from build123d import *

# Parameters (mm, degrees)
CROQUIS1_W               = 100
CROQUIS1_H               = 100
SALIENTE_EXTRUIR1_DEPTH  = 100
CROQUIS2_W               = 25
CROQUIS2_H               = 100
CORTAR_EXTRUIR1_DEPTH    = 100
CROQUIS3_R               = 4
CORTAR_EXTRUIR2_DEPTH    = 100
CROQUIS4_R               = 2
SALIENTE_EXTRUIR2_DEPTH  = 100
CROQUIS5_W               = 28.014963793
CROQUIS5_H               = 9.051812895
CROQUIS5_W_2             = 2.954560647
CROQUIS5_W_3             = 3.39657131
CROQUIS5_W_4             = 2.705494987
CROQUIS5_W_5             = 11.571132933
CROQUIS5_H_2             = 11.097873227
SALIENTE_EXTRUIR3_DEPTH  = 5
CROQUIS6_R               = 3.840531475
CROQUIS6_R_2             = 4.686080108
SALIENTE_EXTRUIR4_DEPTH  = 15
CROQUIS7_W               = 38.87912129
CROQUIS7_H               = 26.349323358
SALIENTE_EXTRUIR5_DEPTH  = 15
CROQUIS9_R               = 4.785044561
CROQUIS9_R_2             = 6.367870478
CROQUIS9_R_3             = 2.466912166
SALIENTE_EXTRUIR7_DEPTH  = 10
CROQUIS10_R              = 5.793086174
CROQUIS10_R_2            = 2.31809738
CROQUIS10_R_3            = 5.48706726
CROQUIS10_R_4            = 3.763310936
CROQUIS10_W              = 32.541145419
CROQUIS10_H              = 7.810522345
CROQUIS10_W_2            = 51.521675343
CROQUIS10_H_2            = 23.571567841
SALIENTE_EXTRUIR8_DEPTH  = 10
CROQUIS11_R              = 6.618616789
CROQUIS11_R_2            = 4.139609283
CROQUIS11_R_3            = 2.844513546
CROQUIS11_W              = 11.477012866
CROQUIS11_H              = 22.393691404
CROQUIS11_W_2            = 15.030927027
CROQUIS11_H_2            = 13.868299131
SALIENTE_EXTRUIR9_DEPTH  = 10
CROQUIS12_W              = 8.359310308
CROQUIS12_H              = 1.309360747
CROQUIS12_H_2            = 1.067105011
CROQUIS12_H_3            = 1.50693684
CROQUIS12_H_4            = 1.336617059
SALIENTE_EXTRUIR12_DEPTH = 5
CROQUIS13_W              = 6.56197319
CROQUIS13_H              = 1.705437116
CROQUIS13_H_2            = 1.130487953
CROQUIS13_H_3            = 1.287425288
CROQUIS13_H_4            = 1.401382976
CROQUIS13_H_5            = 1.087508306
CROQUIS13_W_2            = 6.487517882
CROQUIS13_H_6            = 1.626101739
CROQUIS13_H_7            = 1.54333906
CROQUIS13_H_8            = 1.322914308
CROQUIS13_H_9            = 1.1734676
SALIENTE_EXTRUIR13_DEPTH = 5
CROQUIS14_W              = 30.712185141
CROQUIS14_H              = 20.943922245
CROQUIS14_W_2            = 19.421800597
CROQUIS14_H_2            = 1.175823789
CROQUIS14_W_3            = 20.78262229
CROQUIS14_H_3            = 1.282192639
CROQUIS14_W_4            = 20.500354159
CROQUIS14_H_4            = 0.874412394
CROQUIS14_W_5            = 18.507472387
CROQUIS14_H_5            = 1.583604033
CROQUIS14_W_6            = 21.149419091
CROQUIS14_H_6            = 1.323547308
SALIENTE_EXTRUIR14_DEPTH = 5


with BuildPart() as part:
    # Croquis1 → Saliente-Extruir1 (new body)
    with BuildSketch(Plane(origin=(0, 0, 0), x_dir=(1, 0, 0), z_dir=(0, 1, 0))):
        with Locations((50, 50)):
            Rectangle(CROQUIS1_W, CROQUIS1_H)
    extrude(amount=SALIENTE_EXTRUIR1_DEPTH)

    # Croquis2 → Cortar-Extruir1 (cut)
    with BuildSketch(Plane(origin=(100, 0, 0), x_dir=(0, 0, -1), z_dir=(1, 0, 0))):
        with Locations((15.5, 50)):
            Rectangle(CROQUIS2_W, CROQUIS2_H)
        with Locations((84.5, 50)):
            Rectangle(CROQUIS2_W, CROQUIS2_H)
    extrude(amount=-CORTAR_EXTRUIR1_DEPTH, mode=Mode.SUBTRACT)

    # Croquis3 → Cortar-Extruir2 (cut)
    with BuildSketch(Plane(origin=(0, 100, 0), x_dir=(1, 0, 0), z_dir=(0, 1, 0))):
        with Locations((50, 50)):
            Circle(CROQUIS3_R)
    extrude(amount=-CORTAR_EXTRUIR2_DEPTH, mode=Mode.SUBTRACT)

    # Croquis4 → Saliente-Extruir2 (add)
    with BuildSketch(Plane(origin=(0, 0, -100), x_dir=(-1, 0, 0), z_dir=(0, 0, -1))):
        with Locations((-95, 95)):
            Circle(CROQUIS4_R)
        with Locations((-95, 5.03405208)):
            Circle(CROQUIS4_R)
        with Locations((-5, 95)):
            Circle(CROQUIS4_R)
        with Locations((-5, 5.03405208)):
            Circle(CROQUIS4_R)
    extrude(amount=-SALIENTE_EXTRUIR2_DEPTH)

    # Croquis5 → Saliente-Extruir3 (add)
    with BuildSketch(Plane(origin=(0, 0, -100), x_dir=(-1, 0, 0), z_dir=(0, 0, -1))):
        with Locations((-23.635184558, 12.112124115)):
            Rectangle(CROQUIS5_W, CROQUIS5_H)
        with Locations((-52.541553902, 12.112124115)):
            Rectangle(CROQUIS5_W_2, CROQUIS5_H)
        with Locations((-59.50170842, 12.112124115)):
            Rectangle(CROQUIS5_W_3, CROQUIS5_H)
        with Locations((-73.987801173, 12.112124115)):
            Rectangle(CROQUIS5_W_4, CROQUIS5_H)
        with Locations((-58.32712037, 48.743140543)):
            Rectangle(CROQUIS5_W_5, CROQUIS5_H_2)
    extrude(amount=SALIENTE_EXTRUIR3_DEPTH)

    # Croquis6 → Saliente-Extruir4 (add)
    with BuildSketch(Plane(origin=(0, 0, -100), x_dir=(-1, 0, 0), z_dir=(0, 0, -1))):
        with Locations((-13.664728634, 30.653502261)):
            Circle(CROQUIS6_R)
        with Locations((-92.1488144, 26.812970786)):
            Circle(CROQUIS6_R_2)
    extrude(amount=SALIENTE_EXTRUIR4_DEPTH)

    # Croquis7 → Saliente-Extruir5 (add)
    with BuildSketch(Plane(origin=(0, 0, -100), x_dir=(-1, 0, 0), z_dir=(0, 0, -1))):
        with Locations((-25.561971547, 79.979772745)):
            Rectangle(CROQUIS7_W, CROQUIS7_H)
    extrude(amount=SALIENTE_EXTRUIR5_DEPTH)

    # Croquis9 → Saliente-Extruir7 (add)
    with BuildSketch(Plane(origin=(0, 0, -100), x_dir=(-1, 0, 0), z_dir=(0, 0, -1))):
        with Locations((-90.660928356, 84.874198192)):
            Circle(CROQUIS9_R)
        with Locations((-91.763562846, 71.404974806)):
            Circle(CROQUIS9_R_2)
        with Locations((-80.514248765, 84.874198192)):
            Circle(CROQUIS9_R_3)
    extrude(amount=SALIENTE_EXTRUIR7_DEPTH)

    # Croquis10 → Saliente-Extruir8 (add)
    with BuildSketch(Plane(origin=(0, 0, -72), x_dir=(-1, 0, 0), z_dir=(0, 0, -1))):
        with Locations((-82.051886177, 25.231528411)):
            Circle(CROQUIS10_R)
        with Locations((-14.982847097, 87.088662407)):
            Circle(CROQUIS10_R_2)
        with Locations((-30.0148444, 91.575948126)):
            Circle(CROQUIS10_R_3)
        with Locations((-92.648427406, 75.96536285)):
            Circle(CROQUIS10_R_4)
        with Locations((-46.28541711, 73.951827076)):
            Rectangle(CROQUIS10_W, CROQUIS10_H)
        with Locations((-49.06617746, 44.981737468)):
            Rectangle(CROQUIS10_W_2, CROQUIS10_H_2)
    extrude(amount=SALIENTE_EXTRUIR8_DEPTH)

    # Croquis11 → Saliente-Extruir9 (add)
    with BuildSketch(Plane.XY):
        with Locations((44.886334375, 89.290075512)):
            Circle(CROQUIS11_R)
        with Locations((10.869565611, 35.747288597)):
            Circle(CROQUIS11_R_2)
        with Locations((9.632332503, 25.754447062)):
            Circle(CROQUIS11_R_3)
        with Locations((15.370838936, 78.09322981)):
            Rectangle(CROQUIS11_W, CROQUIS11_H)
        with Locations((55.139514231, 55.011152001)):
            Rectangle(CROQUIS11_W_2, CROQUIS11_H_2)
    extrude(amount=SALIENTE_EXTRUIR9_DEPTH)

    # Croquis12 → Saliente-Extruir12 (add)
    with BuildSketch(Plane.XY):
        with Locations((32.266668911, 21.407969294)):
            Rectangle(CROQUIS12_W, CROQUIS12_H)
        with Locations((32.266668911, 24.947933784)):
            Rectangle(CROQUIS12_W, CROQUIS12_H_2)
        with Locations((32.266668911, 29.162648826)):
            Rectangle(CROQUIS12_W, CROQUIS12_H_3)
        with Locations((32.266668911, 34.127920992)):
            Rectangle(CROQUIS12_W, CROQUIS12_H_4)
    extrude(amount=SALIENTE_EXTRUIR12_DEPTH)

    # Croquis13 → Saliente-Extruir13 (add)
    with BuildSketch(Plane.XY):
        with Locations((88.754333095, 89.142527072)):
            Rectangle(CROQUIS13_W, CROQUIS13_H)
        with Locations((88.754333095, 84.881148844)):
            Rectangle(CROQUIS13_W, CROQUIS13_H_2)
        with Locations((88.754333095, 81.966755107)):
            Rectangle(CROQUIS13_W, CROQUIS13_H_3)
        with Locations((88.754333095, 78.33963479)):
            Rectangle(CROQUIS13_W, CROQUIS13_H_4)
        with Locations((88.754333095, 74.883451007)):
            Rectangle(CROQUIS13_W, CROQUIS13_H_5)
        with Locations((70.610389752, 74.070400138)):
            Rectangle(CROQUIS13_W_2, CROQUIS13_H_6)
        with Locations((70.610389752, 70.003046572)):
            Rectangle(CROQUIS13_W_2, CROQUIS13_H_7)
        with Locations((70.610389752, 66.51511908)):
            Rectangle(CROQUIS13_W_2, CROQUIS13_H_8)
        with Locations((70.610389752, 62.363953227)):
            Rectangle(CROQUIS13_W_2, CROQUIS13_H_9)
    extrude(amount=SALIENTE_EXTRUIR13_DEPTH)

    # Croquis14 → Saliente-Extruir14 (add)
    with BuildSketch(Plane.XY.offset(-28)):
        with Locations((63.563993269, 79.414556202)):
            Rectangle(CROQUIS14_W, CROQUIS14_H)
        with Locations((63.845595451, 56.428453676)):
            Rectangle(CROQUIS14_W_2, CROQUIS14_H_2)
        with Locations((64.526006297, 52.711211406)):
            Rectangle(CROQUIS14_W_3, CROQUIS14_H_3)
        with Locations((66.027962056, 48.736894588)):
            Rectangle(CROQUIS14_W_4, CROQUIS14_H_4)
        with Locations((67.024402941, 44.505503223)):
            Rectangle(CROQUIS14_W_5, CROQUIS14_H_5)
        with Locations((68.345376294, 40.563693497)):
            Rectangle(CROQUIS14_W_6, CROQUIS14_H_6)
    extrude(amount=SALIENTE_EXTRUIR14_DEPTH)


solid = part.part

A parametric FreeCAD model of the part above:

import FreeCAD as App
import Part
import Sketcher

V = App.Vector

doc = App.newDocument("Part")
body = doc.addObject("PartDesign::Body", "Body")
body.AllowCompound = True

sketch1 = body.newObject("Sketcher::SketchObject", "Sketch")
sketch1.AttachmentSupport = (doc.getObject("XZ_Plane"), [""])
sketch1.MapMode = "FlatFace"
sketch1.addGeometry([
    Part.LineSegment(V(0, -100, 0), V(0, 0, 0)),
    Part.LineSegment(V(0, 0, 0), V(100, 0, 0)),
    Part.LineSegment(V(100, 0, 0), V(100, -100, 0)),
    Part.LineSegment(V(100, -100, 0), V(0, -100, 0)),
], False)
sketch1.addConstraint([
    Sketcher.Constraint("Coincident", 0, 2, 1, 1),
    Sketcher.Constraint("Coincident", 1, 2, 2, 1),
    Sketcher.Constraint("Coincident", 2, 2, 3, 1),
    Sketcher.Constraint("Coincident", 3, 2, 0, 1),
    Sketcher.Constraint("Vertical", 0),
    Sketcher.Constraint("Horizontal", 1),
    Sketcher.Constraint("Vertical", 2),
    Sketcher.Constraint("Horizontal", 3),
    Sketcher.Constraint("Coincident", 0, 2, -1, 1),
    Sketcher.Constraint("Equal", 3, 0),
    Sketcher.Constraint("DistanceX", 1, 1, 1, 2, 100.0),
])
pad1 = body.newObject("PartDesign::Pad", "Pad")
pad1.Profile = sketch1
pad1.Length = 100
pad1.Reversed = True

sketch2 = body.newObject("Sketcher::SketchObject", "Sketch001")
sketch2.AttachmentSupport = (doc.getObject("YZ_Plane"), [""])
sketch2.MapMode = "FlatFace"
sketch2.AttachmentOffset = App.Placement(V(0, 0, 100), App.Rotation())
sketch2.addGeometry([
    Part.LineSegment(V(100, -3, 0), V(0, -3, 0)),
    Part.LineSegment(V(0, -3, 0), V(0, -28, 0)),
    Part.LineSegment(V(0, -28, 0), V(100, -28, 0)),
    Part.LineSegment(V(100, -28, 0), V(100, -3, 0)),
    Part.LineSegment(V(100, -72, 0), V(0, -72, 0)),
    Part.LineSegment(V(0, -72, 0), V(0, -97, 0)),
    Part.LineSegment(V(0, -97, 0), V(100, -97, 0)),
    Part.LineSegment(V(100, -97, 0), V(100, -72, 0)),
], False)
sketch2.addConstraint([
    Sketcher.Constraint("Coincident", 0, 2, 1, 1),
    Sketcher.Constraint("Coincident", 1, 2, 2, 1),
    Sketcher.Constraint("Coincident", 2, 2, 3, 1),
    Sketcher.Constraint("Coincident", 3, 2, 0, 1),
    Sketcher.Constraint("Coincident", 4, 2, 5, 1),
    Sketcher.Constraint("Coincident", 5, 2, 6, 1),
    Sketcher.Constraint("Coincident", 6, 2, 7, 1),
    Sketcher.Constraint("Coincident", 7, 2, 4, 1),
    Sketcher.Constraint("Horizontal", 0),
    Sketcher.Constraint("Vertical", 1),
    Sketcher.Constraint("Horizontal", 2),
    Sketcher.Constraint("Vertical", 3),
    Sketcher.Constraint("Horizontal", 4),
    Sketcher.Constraint("Vertical", 5),
    Sketcher.Constraint("Horizontal", 6),
    Sketcher.Constraint("Vertical", 7),
    Sketcher.Constraint("PointOnObject", 0, 2, -2),
    Sketcher.Constraint("PointOnObject", 4, 2, -2),
    Sketcher.Constraint("Vertical", 3, 2, 6, 2),
    Sketcher.Constraint("Equal", 3, 5),
    Sketcher.Constraint("DistanceX", 0, 2, 0, 1, 100.0),
    Sketcher.Constraint("DistanceY", 1, 2, 1, 1, 25.0),
    Sketcher.Constraint("DistanceY", 0, 2, -1, 1, 3.0),
    Sketcher.Constraint("DistanceY", 4, 2, -1, 1, 72.0),
])
pocket1 = body.newObject("PartDesign::Pocket", "Pocket")
pocket1.Profile = sketch2
pocket1.Length = 100

sketch3 = body.newObject("Sketcher::SketchObject", "Sketch002")
sketch3.AttachmentSupport = (doc.getObject("XZ_Plane"), [""])
sketch3.MapMode = "FlatFace"
sketch3.AttachmentOffset = App.Placement(V(0, 0, -100), App.Rotation())
sketch3.addGeometry(Part.Circle(V(50, -50, 0), V(0, 0, 1), 4), False)
sketch3.addConstraint([
    Sketcher.Constraint("Diameter", 0, 8.0),
    Sketcher.Constraint("DistanceX", -1, 1, 0, 3, 50.0),
    Sketcher.Constraint("DistanceY", 0, 3, -1, 1, 50.0),
])
pocket2 = body.newObject("PartDesign::Pocket", "Pocket001")
pocket2.Profile = sketch3
pocket2.Length = 100
pocket2.Reversed = True

sketch4 = body.newObject("Sketcher::SketchObject", "Sketch003")
sketch4.AttachmentSupport = (doc.getObject("XY_Plane"), [""])
sketch4.MapMode = "FlatFace"
sketch4.AttachmentOffset = App.Placement(V(0, 0, -100), App.Rotation())
sketch4.addGeometry([
    Part.Circle(V(95, 95, 0), V(0, 0, 1), 2),
    Part.Circle(V(95, 5.034052, 0), V(0, 0, 1), 2),
    Part.Circle(V(5, 95, 0), V(0, 0, 1), 2),
    Part.Circle(V(5, 5.034052, 0), V(0, 0, 1), 2),
], False)
sketch4.addConstraint([
    Sketcher.Constraint("Equal", 0, 1),
    Sketcher.Constraint("Equal", 1, 2),
    Sketcher.Constraint("Equal", 2, 3),
    Sketcher.Constraint("Horizontal", 0, 3, 2, 3),
    Sketcher.Constraint("Horizontal", 1, 3, 3, 3),
    Sketcher.Constraint("Vertical", 0, 3, 1, 3),
    Sketcher.Constraint("Vertical", 2, 3, 3, 3),
    Sketcher.Constraint("Diameter", 0, 4.0),
    Sketcher.Constraint("DistanceX", -1, 1, 0, 3, 95.0),
    Sketcher.Constraint("DistanceY", -1, 1, 0, 3, 95.0),
    Sketcher.Constraint("DistanceX", -1, 1, 2, 3, 5.0),
    Sketcher.Constraint("DistanceY", -1, 1, 1, 3, 5.034052),
])
pad2 = body.newObject("PartDesign::Pad", "Pad001")
pad2.Profile = sketch4
pad2.Length = 100

sketch5 = body.newObject("Sketcher::SketchObject", "Sketch004")
sketch5.AttachmentSupport = (doc.getObject("XY_Plane"), [""])
sketch5.MapMode = "FlatFace"
sketch5.AttachmentOffset = App.Placement(V(0, 0, -100), App.Rotation())
sketch5.addGeometry([
    Part.LineSegment(V(37.642666, 16.638031, 0), V(37.642666, 7.586218, 0)),
    Part.LineSegment(V(37.642666, 7.586218, 0), V(9.627703, 7.586218, 0)),
    Part.LineSegment(V(9.627703, 7.586218, 0), V(9.627703, 16.638031, 0)),
    Part.LineSegment(V(9.627703, 16.638031, 0), V(37.642666, 16.638031, 0)),
    Part.LineSegment(V(54.018834, 16.638031, 0), V(54.018834, 7.586218, 0)),
    Part.LineSegment(V(54.018834, 7.586218, 0), V(51.064274, 7.586218, 0)),
    Part.LineSegment(V(51.064274, 7.586218, 0), V(51.064274, 16.638031, 0)),
    Part.LineSegment(V(51.064274, 16.638031, 0), V(54.018834, 16.638031, 0)),
    Part.LineSegment(V(61.199994, 16.638031, 0), V(61.199994, 7.586218, 0)),
    Part.LineSegment(V(61.199994, 7.586218, 0), V(57.803423, 7.586218, 0)),
    Part.LineSegment(V(57.803423, 7.586218, 0), V(57.803423, 16.638031, 0)),
    Part.LineSegment(V(57.803423, 16.638031, 0), V(61.199994, 16.638031, 0)),
    Part.LineSegment(V(75.340549, 16.638031, 0), V(75.340549, 7.586218, 0)),
    Part.LineSegment(V(75.340549, 7.586218, 0), V(72.635054, 7.586218, 0)),
    Part.LineSegment(V(72.635054, 7.586218, 0), V(72.635054, 16.638031, 0)),
    Part.LineSegment(V(72.635054, 16.638031, 0), V(75.340549, 16.638031, 0)),
    Part.LineSegment(V(64.112687, 54.292077, 0), V(64.112687, 43.194204, 0)),
    Part.LineSegment(V(64.112687, 43.194204, 0), V(52.541554, 43.194204, 0)),
    Part.LineSegment(V(52.541554, 43.194204, 0), V(52.541554, 54.292077, 0)),
    Part.LineSegment(V(52.541554, 54.292077, 0), V(64.112687, 54.292077, 0)),
], False)
sketch5.addConstraint([
    Sketcher.Constraint("Coincident", 0, 2, 1, 1),
    Sketcher.Constraint("Coincident", 1, 2, 2, 1),
    Sketcher.Constraint("Coincident", 2, 2, 3, 1),
    Sketcher.Constraint("Coincident", 3, 2, 0, 1),
    Sketcher.Constraint("Coincident", 4, 2, 5, 1),
    Sketcher.Constraint("Coincident", 5, 2, 6, 1),
    Sketcher.Constraint("Coincident", 6, 2, 7, 1),
    Sketcher.Constraint("Coincident", 7, 2, 4, 1),
    Sketcher.Constraint("Coincident", 8, 2, 9, 1),
    Sketcher.Constraint("Coincident", 9, 2, 10, 1),
    Sketcher.Constraint("Coincident", 10, 2, 11, 1),
    Sketcher.Constraint("Coincident", 11, 2, 8, 1),
    Sketcher.Constraint("Coincident", 12, 2, 13, 1),
    Sketcher.Constraint("Coincident", 13, 2, 14, 1),
    Sketcher.Constraint("Coincident", 14, 2, 15, 1),
    Sketcher.Constraint("Coincident", 15, 2, 12, 1),
    Sketcher.Constraint("Coincident", 16, 2, 17, 1),
    Sketcher.Constraint("Coincident", 17, 2, 18, 1),
    Sketcher.Constraint("Coincident", 18, 2, 19, 1),
    Sketcher.Constraint("Coincident", 19, 2, 16, 1),
    Sketcher.Constraint("Vertical", 0),
    Sketcher.Constraint("Horizontal", 1),
    Sketcher.Constraint("Vertical", 2),
    Sketcher.Constraint("Horizontal", 3),
    Sketcher.Constraint("Vertical", 4),
    Sketcher.Constraint("Horizontal", 5),
    Sketcher.Constraint("Vertical", 6),
    Sketcher.Constraint("Horizontal", 7),
    Sketcher.Constraint("Vertical", 8),
    Sketcher.Constraint("Horizontal", 9),
    Sketcher.Constraint("Vertical", 10),
    Sketcher.Constraint("Horizontal", 11),
    Sketcher.Constraint("Vertical", 12),
    Sketcher.Constraint("Horizontal", 13),
    Sketcher.Constraint("Vertical", 14),
    Sketcher.Constraint("Horizontal", 15),
    Sketcher.Constraint("Vertical", 16),
    Sketcher.Constraint("Horizontal", 17),
    Sketcher.Constraint("Vertical", 18),
    Sketcher.Constraint("Horizontal", 19),
    Sketcher.Constraint("Horizontal", 1, 2, 4, 2),
    Sketcher.Constraint("Horizontal", 3, 2, 6, 2),
    Sketcher.Constraint("Horizontal", 5, 2, 8, 2),
    Sketcher.Constraint("Horizontal", 7, 2, 10, 2),
    Sketcher.Constraint("Horizontal", 9, 2, 12, 2),
    Sketcher.Constraint("Horizontal", 11, 2, 14, 2),
    Sketcher.Constraint("DistanceX", 5, 2, 5, 1, 2.954561),
    Sketcher.Constraint("DistanceX", 9, 2, 9, 1, 3.396571),
    Sketcher.Constraint("DistanceX", 1, 2, 1, 1, 28.014964),
    Sketcher.Constraint("DistanceX", 13, 2, 13, 1, 2.705495),
    Sketcher.Constraint("DistanceX", 17, 2, 17, 1, 11.571133),
    Sketcher.Constraint("DistanceY", 0, 2, 0, 1, 9.051813),
    Sketcher.Constraint("DistanceY", 16, 2, 16, 1, 11.097873),
    Sketcher.Constraint("DistanceY", -1, 1, 2, 2, 16.638031),
    Sketcher.Constraint("DistanceX", -1, 1, 12, 2, 75.340549),
    Sketcher.Constraint("DistanceX", 1, 2, 4, 2, 44.391132),
    Sketcher.Constraint("DistanceX", 4, 2, 8, 2, 7.18116),
    Sketcher.Constraint("DistanceX", 8, 2, 13, 2, 11.43506),
    Sketcher.Constraint("DistanceX", 16, 2, 15, 2, 11.227862),
    Sketcher.Constraint("DistanceY", -1, 1, 16, 2, 43.194204),
])
pad3 = body.newObject("PartDesign::Pad", "Pad002")
pad3.Profile = sketch5
pad3.Length = 5
pad3.Reversed = True

sketch6 = body.newObject("Sketcher::SketchObject", "Sketch005")
sketch6.AttachmentSupport = (doc.getObject("XY_Plane"), [""])
sketch6.MapMode = "FlatFace"
sketch6.AttachmentOffset = App.Placement(V(0, 0, -100), App.Rotation())
sketch6.addGeometry([
    Part.Circle(V(13.664729, 30.653502, 0), V(0, 0, 1), 3.840531),
    Part.Circle(V(92.148814, 26.812971, 0), V(0, 0, 1), 4.68608),
], False)
sketch6.addConstraint([
    Sketcher.Constraint("Diameter", 1, 9.37216),
    Sketcher.Constraint("Diameter", 0, 7.681063),
    Sketcher.Constraint("DistanceX", -1, 1, 0, 3, 13.664729),
    Sketcher.Constraint("DistanceY", -1, 1, 1, 3, 26.812971),
    Sketcher.Constraint("DistanceY", 1, 3, 0, 3, 3.840531),
    Sketcher.Constraint("DistanceX", -1, 1, 1, 3, 92.148814),
])
pad4 = body.newObject("PartDesign::Pad", "Pad003")
pad4.Profile = sketch6
pad4.Length = 15
pad4.Reversed = True

sketch7 = body.newObject("Sketcher::SketchObject", "Sketch006")
sketch7.AttachmentSupport = (doc.getObject("XY_Plane"), [""])
sketch7.MapMode = "FlatFace"
sketch7.AttachmentOffset = App.Placement(V(0, 0, -100), App.Rotation())
sketch7.addGeometry([
    Part.LineSegment(V(45.001532, 93.154434, 0), V(45.001532, 66.805111, 0)),
    Part.LineSegment(V(45.001532, 66.805111, 0), V(6.122411, 66.805111, 0)),
    Part.LineSegment(V(6.122411, 66.805111, 0), V(6.122411, 93.154434, 0)),
    Part.LineSegment(V(6.122411, 93.154434, 0), V(45.001532, 93.154434, 0)),
], False)
sketch7.addConstraint([
    Sketcher.Constraint("Coincident", 0, 2, 1, 1),
    Sketcher.Constraint("Coincident", 1, 2, 2, 1),
    Sketcher.Constraint("Coincident", 2, 2, 3, 1),
    Sketcher.Constraint("Coincident", 3, 2, 0, 1),
    Sketcher.Constraint("Vertical", 0),
    Sketcher.Constraint("Horizontal", 1),
    Sketcher.Constraint("Vertical", 2),
    Sketcher.Constraint("Horizontal", 3),
    Sketcher.Constraint("DistanceX", 1, 2, 1, 1, 38.879121),
    Sketcher.Constraint("DistanceY", 0, 2, 0, 1, 26.349323),
    Sketcher.Constraint("DistanceY", -1, 1, 0, 2, 66.805111),
    Sketcher.Constraint("DistanceX", -1, 1, 1, 2, 6.122411),
])
pad5 = body.newObject("PartDesign::Pad", "Pad004")
pad5.Profile = sketch7
pad5.Length = 15
pad5.Reversed = True

sketch8 = body.newObject("Sketcher::SketchObject", "Sketch007")
sketch8.AttachmentSupport = (doc.getObject("XY_Plane"), [""])
sketch8.MapMode = "FlatFace"
sketch8.AttachmentOffset = App.Placement(V(0, 0, -100), App.Rotation())
sketch8.addGeometry([
    Part.Circle(V(90.660928, 84.874198, 0), V(0, 0, 1), 4.785045),
    Part.Circle(V(91.763563, 71.404975, 0), V(0, 0, 1), 6.36787),
    Part.Circle(V(80.514249, 84.874198, 0), V(0, 0, 1), 2.466912),
], False)
sketch8.addConstraint([
    Sketcher.Constraint("Horizontal", 0, 3, 2, 3),
    Sketcher.Constraint("Diameter", 0, 9.570089),
    Sketcher.Constraint("Diameter", 1, 12.735741),
    Sketcher.Constraint("Diameter", 2, 4.933824),
    Sketcher.Constraint("DistanceY", -1, 1, 0, 3, 84.874198),
    Sketcher.Constraint("DistanceX", -1, 1, 0, 3, 90.660928),
    Sketcher.Constraint("DistanceX", -1, 1, 2, 3, 80.514249),
    Sketcher.Constraint("DistanceX", -1, 1, 1, 3, 91.763563),
    Sketcher.Constraint("DistanceY", -1, 1, 1, 3, 71.404975),
])
pad6 = body.newObject("PartDesign::Pad", "Pad005")
pad6.Profile = sketch8
pad6.Length = 10
pad6.Reversed = True

sketch9 = body.newObject("Sketcher::SketchObject", "Sketch008")
sketch9.AttachmentSupport = (doc.getObject("XY_Plane"), [""])
sketch9.MapMode = "FlatFace"
sketch9.AttachmentOffset = App.Placement(V(0, 0, -72), App.Rotation())
sketch9.addGeometry([
    Part.Circle(V(82.051886, 25.231528, 0), V(0, 0, 1), 5.793086),
    Part.Circle(V(14.982847, 87.088662, 0), V(0, 0, 1), 2.318097),
    Part.Circle(V(30.014844, 91.575948, 0), V(0, 0, 1), 5.487067),
    Part.Circle(V(92.648427, 75.965363, 0), V(0, 0, 1), 3.763311),
    Part.LineSegment(V(62.55599, 77.857088, 0), V(62.55599, 70.046566, 0)),
    Part.LineSegment(V(62.55599, 70.046566, 0), V(30.014844, 70.046566, 0)),
    Part.LineSegment(V(30.014844, 70.046566, 0), V(30.014844, 77.857088, 0)),
    Part.LineSegment(V(30.014844, 77.857088, 0), V(62.55599, 77.857088, 0)),
    Part.LineSegment(V(74.827015, 56.767521, 0), V(74.827015, 33.195954, 0)),
    Part.LineSegment(V(74.827015, 33.195954, 0), V(23.30534, 33.195954, 0)),
    Part.LineSegment(V(23.30534, 33.195954, 0), V(23.30534, 56.767521, 0)),
    Part.LineSegment(V(23.30534, 56.767521, 0), V(74.827015, 56.767521, 0)),
], False)
sketch9.addConstraint([
    Sketcher.Constraint("Coincident", 4, 2, 5, 1),
    Sketcher.Constraint("Coincident", 5, 2, 6, 1),
    Sketcher.Constraint("Coincident", 6, 2, 7, 1),
    Sketcher.Constraint("Coincident", 7, 2, 4, 1),
    Sketcher.Constraint("Coincident", 8, 2, 9, 1),
    Sketcher.Constraint("Coincident", 9, 2, 10, 1),
    Sketcher.Constraint("Coincident", 10, 2, 11, 1),
    Sketcher.Constraint("Coincident", 11, 2, 8, 1),
    Sketcher.Constraint("Vertical", 4),
    Sketcher.Constraint("Horizontal", 5),
    Sketcher.Constraint("Vertical", 6),
    Sketcher.Constraint("Horizontal", 7),
    Sketcher.Constraint("Vertical", 8),
    Sketcher.Constraint("Horizontal", 9),
    Sketcher.Constraint("Vertical", 10),
    Sketcher.Constraint("Horizontal", 11),
    Sketcher.Constraint("Vertical", 2, 3, 5, 2),
    Sketcher.Constraint("Diameter", 3, 7.526622),
    Sketcher.Constraint("Diameter", 0, 11.586172),
    Sketcher.Constraint("Diameter", 1, 4.636195),
    Sketcher.Constraint("Diameter", 2, 10.974135),
    Sketcher.Constraint("DistanceY", 3, 3, 1, 3, 11.1233),
    Sketcher.Constraint("DistanceX", 5, 2, 5, 1, 32.541145),
    Sketcher.Constraint("DistanceX", 9, 2, 9, 1, 51.521675),
    Sketcher.Constraint("DistanceY", 4, 2, 4, 1, 7.810522),
    Sketcher.Constraint("DistanceY", 8, 2, 8, 1, 23.571568),
    Sketcher.Constraint("DistanceY", -1, 1, 0, 3, 25.231528),
    Sketcher.Constraint("DistanceY", -1, 1, 2, 3, 91.575948),
    Sketcher.Constraint("DistanceX", -1, 1, 4, 2, 62.55599),
    Sketcher.Constraint("DistanceY", -1, 1, 6, 2, 77.857088),
    Sketcher.Constraint("DistanceX", -1, 1, 9, 2, 23.30534),
    Sketcher.Constraint("DistanceY", -1, 1, 10, 2, 56.767521),
    Sketcher.Constraint("DistanceX", 1, 3, 0, 3, 67.069039),
    Sketcher.Constraint("DistanceX", 2, 3, 0, 3, 52.037042),
    Sketcher.Constraint("DistanceX", 0, 3, 3, 3, 10.596541),
    Sketcher.Constraint("DistanceY", 8, 2, 3, 3, 42.769409),
])
pad7 = body.newObject("PartDesign::Pad", "Pad006")
pad7.Profile = sketch9
pad7.Length = 10
pad7.Reversed = True

sketch10 = body.newObject("Sketcher::SketchObject", "Sketch009")
sketch10.AttachmentSupport = (doc.getObject("XY_Plane"), [""])
sketch10.MapMode = "FlatFace"
sketch10.addGeometry([
    Part.Circle(V(44.886334, 89.290076, 0), V(0, 0, 1), 6.618617),
    Part.Circle(V(10.869566, 35.747289, 0), V(0, 0, 1), 4.139609),
    Part.Circle(V(9.632333, 25.754447, 0), V(0, 0, 1), 2.844514),
    Part.LineSegment(V(9.632333, 89.290076, 0), V(9.632333, 66.896384, 0)),
    Part.LineSegment(V(9.632333, 66.896384, 0), V(21.109345, 66.896384, 0)),
    Part.LineSegment(V(21.109345, 66.896384, 0), V(21.109345, 89.290076, 0)),
    Part.LineSegment(V(21.109345, 89.290076, 0), V(9.632333, 89.290076, 0)),
    Part.LineSegment(V(47.624051, 61.945302, 0), V(47.624051, 48.077002, 0)),
    Part.LineSegment(V(47.624051, 48.077002, 0), V(62.654978, 48.077002, 0)),
    Part.LineSegment(V(62.654978, 48.077002, 0), V(62.654978, 61.945302, 0)),
    Part.LineSegment(V(62.654978, 61.945302, 0), V(47.624051, 61.945302, 0)),
], False)
sketch10.addConstraint([
    Sketcher.Constraint("Coincident", 3, 2, 4, 1),
    Sketcher.Constraint("Coincident", 4, 2, 5, 1),
    Sketcher.Constraint("Coincident", 5, 2, 6, 1),
    Sketcher.Constraint("Coincident", 6, 2, 3, 1),
    Sketcher.Constraint("Coincident", 7, 2, 8, 1),
    Sketcher.Constraint("Coincident", 8, 2, 9, 1),
    Sketcher.Constraint("Coincident", 9, 2, 10, 1),
    Sketcher.Constraint("Coincident", 10, 2, 7, 1),
    Sketcher.Constraint("Vertical", 3),
    Sketcher.Constraint("Horizontal", 4),
    Sketcher.Constraint("Vertical", 5),
    Sketcher.Constraint("Horizontal", 6),
    Sketcher.Constraint("Vertical", 7),
    Sketcher.Constraint("Horizontal", 8),
    Sketcher.Constraint("Vertical", 9),
    Sketcher.Constraint("Horizontal", 10),
    Sketcher.Constraint("Horizontal", 0, 3, 5, 2),
    Sketcher.Constraint("Vertical", 2, 3, 3, 2),
    Sketcher.Constraint("Diameter", 1, 8.279219),
    Sketcher.Constraint("Diameter", 0, 13.237234),
    Sketcher.Constraint("Diameter", 2, 5.689027),
    Sketcher.Constraint("DistanceY", 7, 2, 7, 1, 13.868299),
    Sketcher.Constraint("DistanceX", 2, 3, 0, 3, 35.254002),
    Sketcher.Constraint("DistanceY", 3, 2, 3, 1, 22.393691),
    Sketcher.Constraint("DistanceY", -1, 1, 9, 2, 61.945302),
    Sketcher.Constraint("DistanceX", 4, 1, 4, 2, 11.477013),
    Sketcher.Constraint("DistanceX", 8, 1, 8, 2, 15.030927),
    Sketcher.Constraint("DistanceY", -1, 1, 1, 3, 35.747289),
    Sketcher.Constraint("DistanceX", -1, 1, 7, 2, 47.624051),
    Sketcher.Constraint("DistanceX", 1, 3, 0, 3, 34.016769),
    Sketcher.Constraint("DistanceY", 2, 3, 1, 3, 9.992842),
    Sketcher.Constraint("DistanceY", 2, 3, 0, 3, 63.535628),
    Sketcher.Constraint("DistanceX", 3, 2, 7, 2, 37.991718),
])
pad8 = body.newObject("PartDesign::Pad", "Pad007")
pad8.Profile = sketch10
pad8.Length = 10

sketch11 = body.newObject("Sketcher::SketchObject", "Sketch010")
sketch11.AttachmentSupport = (doc.getObject("XY_Plane"), [""])
sketch11.MapMode = "FlatFace"
sketch11.addGeometry([
    Part.LineSegment(V(28.087014, 22.06265, 0), V(28.087014, 20.753289, 0)),
    Part.LineSegment(V(28.087014, 20.753289, 0), V(36.446324, 20.753289, 0)),
    Part.LineSegment(V(36.446324, 20.753289, 0), V(36.446324, 22.06265, 0)),
    Part.LineSegment(V(36.446324, 22.06265, 0), V(28.087014, 22.06265, 0)),
    Part.LineSegment(V(28.087014, 25.481486, 0), V(28.087014, 24.414381, 0)),
    Part.LineSegment(V(28.087014, 24.414381, 0), V(36.446324, 24.414381, 0)),
    Part.LineSegment(V(36.446324, 24.414381, 0), V(36.446324, 25.481486, 0)),
    Part.LineSegment(V(36.446324, 25.481486, 0), V(28.087014, 25.481486, 0)),
    Part.LineSegment(V(28.087014, 29.916117, 0), V(28.087014, 28.40918, 0)),
    Part.LineSegment(V(28.087014, 28.40918, 0), V(36.446324, 28.40918, 0)),
    Part.LineSegment(V(36.446324, 28.40918, 0), V(36.446324, 29.916117, 0)),
    Part.LineSegment(V(36.446324, 29.916117, 0), V(28.087014, 29.916117, 0)),
    Part.LineSegment(V(28.087014, 34.79623, 0), V(28.087014, 33.459612, 0)),
    Part.LineSegment(V(28.087014, 33.459612, 0), V(36.446324, 33.459612, 0)),
    Part.LineSegment(V(36.446324, 33.459612, 0), V(36.446324, 34.79623, 0)),
    Part.LineSegment(V(36.446324, 34.79623, 0), V(28.087014, 34.79623, 0)),
], False)
sketch11.addConstraint([
    Sketcher.Constraint("Coincident", 0, 2, 1, 1),
    Sketcher.Constraint("Coincident", 1, 2, 2, 1),
    Sketcher.Constraint("Coincident", 2, 2, 3, 1),
    Sketcher.Constraint("Coincident", 3, 2, 0, 1),
    Sketcher.Constraint("Coincident", 4, 2, 5, 1),
    Sketcher.Constraint("Coincident", 5, 2, 6, 1),
    Sketcher.Constraint("Coincident", 6, 2, 7, 1),
    Sketcher.Constraint("Coincident", 7, 2, 4, 1),
    Sketcher.Constraint("Coincident", 8, 2, 9, 1),
    Sketcher.Constraint("Coincident", 9, 2, 10, 1),
    Sketcher.Constraint("Coincident", 10, 2, 11, 1),
    Sketcher.Constraint("Coincident", 11, 2, 8, 1),
    Sketcher.Constraint("Coincident", 12, 2, 13, 1),
    Sketcher.Constraint("Coincident", 13, 2, 14, 1),
    Sketcher.Constraint("Coincident", 14, 2, 15, 1),
    Sketcher.Constraint("Coincident", 15, 2, 12, 1),
    Sketcher.Constraint("Vertical", 0),
    Sketcher.Constraint("Horizontal", 1),
    Sketcher.Constraint("Vertical", 2),
    Sketcher.Constraint("Horizontal", 3),
    Sketcher.Constraint("Vertical", 4),
    Sketcher.Constraint("Horizontal", 5),
    Sketcher.Constraint("Vertical", 6),
    Sketcher.Constraint("Horizontal", 7),
    Sketcher.Constraint("Vertical", 8),
    Sketcher.Constraint("Horizontal", 9),
    Sketcher.Constraint("Vertical", 10),
    Sketcher.Constraint("Horizontal", 11),
    Sketcher.Constraint("Vertical", 12),
    Sketcher.Constraint("Horizontal", 13),
    Sketcher.Constraint("Vertical", 14),
    Sketcher.Constraint("Horizontal", 15),
    Sketcher.Constraint("Vertical", 3, 2, 4, 2),
    Sketcher.Constraint("Vertical", 2, 2, 5, 2),
    Sketcher.Constraint("Vertical", 7, 2, 8, 2),
    Sketcher.Constraint("Vertical", 6, 2, 9, 2),
    Sketcher.Constraint("Vertical", 11, 2, 12, 2),
    Sketcher.Constraint("Vertical", 10, 2, 13, 2),
    Sketcher.Constraint("DistanceX", 1, 1, 1, 2, 8.35931),
    Sketcher.Constraint("DistanceY", 0, 2, 0, 1, 1.309361),
    Sketcher.Constraint("DistanceY", 4, 2, 8, 2, 3.994799),
    Sketcher.Constraint("DistanceY", 4, 2, 4, 1, 1.067105),
    Sketcher.Constraint("DistanceY", 8, 2, 8, 1, 1.506937),
    Sketcher.Constraint("DistanceY", 12, 2, 12, 1, 1.336617),
    Sketcher.Constraint("DistanceY", -1, 1, 0, 2, 20.753289),
    Sketcher.Constraint("DistanceY", -1, 1, 4, 2, 24.414381),
    Sketcher.Constraint("DistanceY", -1, 1, 14, 2, 34.79623),
    Sketcher.Constraint("DistanceX", -1, 1, 0, 2, 28.087014),
])
pad9 = body.newObject("PartDesign::Pad", "Pad008")
pad9.Profile = sketch11
pad9.Length = 5

sketch12 = body.newObject("Sketcher::SketchObject", "Sketch011")
sketch12.AttachmentSupport = (doc.getObject("XY_Plane"), [""])
sketch12.MapMode = "FlatFace"
sketch12.addGeometry([
    Part.LineSegment(V(85.473347, 89.995246, 0), V(85.473347, 88.289809, 0)),
    Part.LineSegment(V(85.473347, 88.289809, 0), V(92.03532, 88.289809, 0)),
    Part.LineSegment(V(92.03532, 88.289809, 0), V(92.03532, 89.995246, 0)),
    Part.LineSegment(V(92.03532, 89.995246, 0), V(85.473347, 89.995246, 0)),
    Part.LineSegment(V(85.473347, 85.446393, 0), V(85.473347, 84.315905, 0)),
    Part.LineSegment(V(85.473347, 84.315905, 0), V(92.03532, 84.315905, 0)),
    Part.LineSegment(V(92.03532, 84.315905, 0), V(92.03532, 85.446393, 0)),
    Part.LineSegment(V(92.03532, 85.446393, 0), V(85.473347, 85.446393, 0)),
    Part.LineSegment(V(85.473347, 82.610468, 0), V(85.473347, 81.323042, 0)),
    Part.LineSegment(V(85.473347, 81.323042, 0), V(92.03532, 81.323042, 0)),
    Part.LineSegment(V(92.03532, 81.323042, 0), V(92.03532, 82.610468, 0)),
    Part.LineSegment(V(92.03532, 82.610468, 0), V(85.473347, 82.610468, 0)),
    Part.LineSegment(V(85.473347, 79.040326, 0), V(85.473347, 77.638943, 0)),
    Part.LineSegment(V(85.473347, 77.638943, 0), V(92.03532, 77.638943, 0)),
    Part.LineSegment(V(92.03532, 77.638943, 0), V(92.03532, 79.040326, 0)),
    Part.LineSegment(V(92.03532, 79.040326, 0), V(85.473347, 79.040326, 0)),
    Part.LineSegment(V(85.473347, 75.427205, 0), V(85.473347, 74.339697, 0)),
    Part.LineSegment(V(85.473347, 74.339697, 0), V(92.03532, 74.339697, 0)),
    Part.LineSegment(V(92.03532, 74.339697, 0), V(92.03532, 75.427205, 0)),
    Part.LineSegment(V(92.03532, 75.427205, 0), V(85.473347, 75.427205, 0)),
    Part.LineSegment(V(67.366631, 74.883451, 0), V(67.366631, 73.257349, 0)),
    Part.LineSegment(V(67.366631, 73.257349, 0), V(73.854149, 73.257349, 0)),
    Part.LineSegment(V(73.854149, 73.257349, 0), V(73.854149, 74.883451, 0)),
    Part.LineSegment(V(73.854149, 74.883451, 0), V(67.366631, 74.883451, 0)),
    Part.LineSegment(V(67.366631, 70.774716, 0), V(67.366631, 69.231377, 0)),
    Part.LineSegment(V(67.366631, 69.231377, 0), V(73.854149, 69.231377, 0)),
    Part.LineSegment(V(73.854149, 69.231377, 0), V(73.854149, 70.774716, 0)),
    Part.LineSegment(V(73.854149, 70.774716, 0), V(67.366631, 70.774716, 0)),
    Part.LineSegment(V(67.366631, 67.176576, 0), V(67.366631, 65.853662, 0)),
    Part.LineSegment(V(67.366631, 65.853662, 0), V(73.854149, 65.853662, 0)),
    Part.LineSegment(V(73.854149, 65.853662, 0), V(73.854149, 67.176576, 0)),
    Part.LineSegment(V(73.854149, 67.176576, 0), V(67.366631, 67.176576, 0)),
    Part.LineSegment(V(67.366631, 62.950687, 0), V(67.366631, 61.777219, 0)),
    Part.LineSegment(V(67.366631, 61.777219, 0), V(73.854149, 61.777219, 0)),
    Part.LineSegment(V(73.854149, 61.777219, 0), V(73.854149, 62.950687, 0)),
    Part.LineSegment(V(73.854149, 62.950687, 0), V(67.366631, 62.950687, 0)),
], False)
sketch12.addConstraint([
    Sketcher.Constraint("Coincident", 0, 2, 1, 1),
    Sketcher.Constraint("Coincident", 1, 2, 2, 1),
    Sketcher.Constraint("Coincident", 2, 2, 3, 1),
    Sketcher.Constraint("Coincident", 3, 2, 0, 1),
    Sketcher.Constraint("Coincident", 4, 2, 5, 1),
    Sketcher.Constraint("Coincident", 5, 2, 6, 1),
    Sketcher.Constraint("Coincident", 6, 2, 7, 1),
    Sketcher.Constraint("Coincident", 7, 2, 4, 1),
    Sketcher.Constraint("Coincident", 8, 2, 9, 1),
    Sketcher.Constraint("Coincident", 9, 2, 10, 1),
    Sketcher.Constraint("Coincident", 10, 2, 11, 1),
    Sketcher.Constraint("Coincident", 11, 2, 8, 1),
    Sketcher.Constraint("Coincident", 12, 2, 13, 1),
    Sketcher.Constraint("Coincident", 13, 2, 14, 1),
    Sketcher.Constraint("Coincident", 14, 2, 15, 1),
    Sketcher.Constraint("Coincident", 15, 2, 12, 1),
    Sketcher.Constraint("Coincident", 16, 2, 17, 1),
    Sketcher.Constraint("Coincident", 17, 2, 18, 1),
    Sketcher.Constraint("Coincident", 18, 2, 19, 1),
    Sketcher.Constraint("Coincident", 19, 2, 16, 1),
    Sketcher.Constraint("Coincident", 20, 2, 21, 1),
    Sketcher.Constraint("Coincident", 21, 2, 22, 1),
    Sketcher.Constraint("Coincident", 22, 2, 23, 1),
    Sketcher.Constraint("Coincident", 23, 2, 20, 1),
    Sketcher.Constraint("Coincident", 24, 2, 25, 1),
    Sketcher.Constraint("Coincident", 25, 2, 26, 1),
    Sketcher.Constraint("Coincident", 26, 2, 27, 1),
    Sketcher.Constraint("Coincident", 27, 2, 24, 1),
    Sketcher.Constraint("Coincident", 28, 2, 29, 1),
    Sketcher.Constraint("Coincident", 29, 2, 30, 1),
    Sketcher.Constraint("Coincident", 30, 2, 31, 1),
    Sketcher.Constraint("Coincident", 31, 2, 28, 1),
    Sketcher.Constraint("Coincident", 32, 2, 33, 1),
    Sketcher.Constraint("Coincident", 33, 2, 34, 1),
    Sketcher.Constraint("Coincident", 34, 2, 35, 1),
    Sketcher.Constraint("Coincident", 35, 2, 32, 1),
    Sketcher.Constraint("Vertical", 0),
    Sketcher.Constraint("Horizontal", 1),
    Sketcher.Constraint("Vertical", 2),
    Sketcher.Constraint("Horizontal", 3),
    Sketcher.Constraint("Vertical", 4),
    Sketcher.Constraint("Horizontal", 5),
    Sketcher.Constraint("Vertical", 6),
    Sketcher.Constraint("Horizontal", 7),
    Sketcher.Constraint("Vertical", 8),
    Sketcher.Constraint("Horizontal", 9),
    Sketcher.Constraint("Vertical", 10),
    Sketcher.Constraint("Horizontal", 11),
    Sketcher.Constraint("Vertical", 12),
    Sketcher.Constraint("Horizontal", 13),
    Sketcher.Constraint("Vertical", 14),
    Sketcher.Constraint("Horizontal", 15),
    Sketcher.Constraint("Vertical", 16),
    Sketcher.Constraint("Horizontal", 17),
    Sketcher.Constraint("Vertical", 18),
    Sketcher.Constraint("Horizontal", 19),
    Sketcher.Constraint("Vertical", 20),
    Sketcher.Constraint("Horizontal", 21),
    Sketcher.Constraint("Vertical", 22),
    Sketcher.Constraint("Horizontal", 23),
    Sketcher.Constraint("Vertical", 24),
    Sketcher.Constraint("Horizontal", 25),
    Sketcher.Constraint("Vertical", 26),
    Sketcher.Constraint("Horizontal", 27),
    Sketcher.Constraint("Vertical", 28),
    Sketcher.Constraint("Horizontal", 29),
    Sketcher.Constraint("Vertical", 30),
    Sketcher.Constraint("Horizontal", 31),
    Sketcher.Constraint("Vertical", 32),
    Sketcher.Constraint("Horizontal", 33),
    Sketcher.Constraint("Vertical", 34),
    Sketcher.Constraint("Horizontal", 35),
    Sketcher.Constraint("Vertical", 3, 2, 4, 2),
    Sketcher.Constraint("Vertical", 2, 2, 5, 2),
    Sketcher.Constraint("Vertical", 7, 2, 8, 2),
    Sketcher.Constraint("Vertical", 6, 2, 9, 2),
    Sketcher.Constraint("Vertical", 11, 2, 12, 2),
    Sketcher.Constraint("Vertical", 10, 2, 13, 2),
    Sketcher.Constraint("Vertical", 15, 2, 16, 2),
    Sketcher.Constraint("Vertical", 14, 2, 17, 2),
    Sketcher.Constraint("Vertical", 23, 2, 24, 2),
    Sketcher.Constraint("Vertical", 22, 2, 25, 2),
    Sketcher.Constraint("Vertical", 27, 2, 28, 2),
    Sketcher.Constraint("Vertical", 26, 2, 29, 2),
    Sketcher.Constraint("Vertical", 31, 2, 32, 2),
    Sketcher.Constraint("Vertical", 30, 2, 33, 2),
    Sketcher.Constraint("DistanceY", 20, 2, 20, 1, 1.626102),
    Sketcher.Constraint("DistanceY", 16, 2, 16, 1, 1.087508),
    Sketcher.Constraint("DistanceY", 24, 2, 24, 1, 1.543339),
    Sketcher.Constraint("DistanceY", 12, 2, 8, 2, 3.684099),
    Sketcher.Constraint("DistanceY", 30, 2, 25, 2, 2.054801),
    Sketcher.Constraint("DistanceX", 1, 1, 1, 2, 6.561973),
    Sketcher.Constraint("DistanceX", 21, 1, 21, 2, 6.487518),
    Sketcher.Constraint("DistanceY", 0, 2, 0, 1, 1.705437),
    Sketcher.Constraint("DistanceY", 4, 2, 4, 1, 1.130488),
    Sketcher.Constraint("DistanceY", 8, 2, 8, 1, 1.287425),
    Sketcher.Constraint("DistanceY", 12, 2, 12, 1, 1.401383),
    Sketcher.Constraint("DistanceY", 28, 2, 28, 1, 1.322914),
    Sketcher.Constraint("DistanceY", 32, 2, 32, 1, 1.173468),
    Sketcher.Constraint("DistanceY", -1, 1, 0, 2, 88.289809),
    Sketcher.Constraint("DistanceX", -1, 1, 1, 2, 92.03532),
    Sketcher.Constraint("DistanceX", -1, 1, 20, 2, 67.366631),
    Sketcher.Constraint("DistanceY", -1, 1, 20, 2, 73.257349),
    Sketcher.Constraint("DistanceY", -1, 1, 28, 2, 65.853662),
    Sketcher.Constraint("DistanceY", -1, 1, 32, 2, 61.777219),
    Sketcher.Constraint("DistanceY", 4, 2, 3, 2, 5.679341),
    Sketcher.Constraint("DistanceY", 8, 2, 7, 2, 4.12335),
    Sketcher.Constraint("DistanceY", 16, 2, 15, 2, 4.700629),
])
pad10 = body.newObject("PartDesign::Pad", "Pad009")
pad10.Profile = sketch12
pad10.Length = 5

sketch13 = body.newObject("Sketcher::SketchObject", "Sketch012")
sketch13.AttachmentSupport = (doc.getObject("XY_Plane"), [""])
sketch13.MapMode = "FlatFace"
sketch13.AttachmentOffset = App.Placement(V(0, 0, -28), App.Rotation())
sketch13.addGeometry([
    Part.LineSegment(V(48.207901, 89.886517, 0), V(48.207901, 68.942595, 0)),
    Part.LineSegment(V(48.207901, 68.942595, 0), V(78.920086, 68.942595, 0)),
    Part.LineSegment(V(78.920086, 68.942595, 0), V(78.920086, 89.886517, 0)),
    Part.LineSegment(V(78.920086, 89.886517, 0), V(48.207901, 89.886517, 0)),
    Part.LineSegment(V(54.134695, 57.016366, 0), V(54.134695, 55.840542, 0)),
    Part.LineSegment(V(54.134695, 55.840542, 0), V(73.556496, 55.840542, 0)),
    Part.LineSegment(V(73.556496, 55.840542, 0), V(73.556496, 57.016366, 0)),
    Part.LineSegment(V(73.556496, 57.016366, 0), V(54.134695, 57.016366, 0)),
    Part.LineSegment(V(54.134695, 53.352308, 0), V(54.134695, 52.070115, 0)),
    Part.LineSegment(V(54.134695, 52.070115, 0), V(74.917317, 52.070115, 0)),
    Part.LineSegment(V(74.917317, 52.070115, 0), V(74.917317, 53.352308, 0)),
    Part.LineSegment(V(74.917317, 53.352308, 0), V(54.134695, 53.352308, 0)),
    Part.LineSegment(V(55.777785, 49.174101, 0), V(55.777785, 48.299688, 0)),
    Part.LineSegment(V(55.777785, 48.299688, 0), V(76.278139, 48.299688, 0)),
    Part.LineSegment(V(76.278139, 48.299688, 0), V(76.278139, 49.174101, 0)),
    Part.LineSegment(V(76.278139, 49.174101, 0), V(55.777785, 49.174101, 0)),
    Part.LineSegment(V(57.770667, 45.297305, 0), V(57.770667, 43.713701, 0)),
    Part.LineSegment(V(57.770667, 43.713701, 0), V(76.278139, 43.713701, 0)),
    Part.LineSegment(V(76.278139, 43.713701, 0), V(76.278139, 45.297305, 0)),
    Part.LineSegment(V(76.278139, 45.297305, 0), V(57.770667, 45.297305, 0)),
    Part.LineSegment(V(57.770667, 41.225467, 0), V(57.770667, 39.90192, 0)),
    Part.LineSegment(V(57.770667, 39.90192, 0), V(78.920086, 39.90192, 0)),
    Part.LineSegment(V(78.920086, 39.90192, 0), V(78.920086, 41.225467, 0)),
    Part.LineSegment(V(78.920086, 41.225467, 0), V(57.770667, 41.225467, 0)),
], False)
sketch13.addConstraint([
    Sketcher.Constraint("Coincident", 0, 2, 1, 1),
    Sketcher.Constraint("Coincident", 1, 2, 2, 1),
    Sketcher.Constraint("Coincident", 2, 2, 3, 1),
    Sketcher.Constraint("Coincident", 3, 2, 0, 1),
    Sketcher.Constraint("Coincident", 4, 2, 5, 1),
    Sketcher.Constraint("Coincident", 5, 2, 6, 1),
    Sketcher.Constraint("Coincident", 6, 2, 7, 1),
    Sketcher.Constraint("Coincident", 7, 2, 4, 1),
    Sketcher.Constraint("Coincident", 8, 2, 9, 1),
    Sketcher.Constraint("Coincident", 9, 2, 10, 1),
    Sketcher.Constraint("Coincident", 10, 2, 11, 1),
    Sketcher.Constraint("Coincident", 11, 2, 8, 1),
    Sketcher.Constraint("Coincident", 12, 2, 13, 1),
    Sketcher.Constraint("Coincident", 13, 2, 14, 1),
    Sketcher.Constraint("Coincident", 14, 2, 15, 1),
    Sketcher.Constraint("Coincident", 15, 2, 12, 1),
    Sketcher.Constraint("Coincident", 16, 2, 17, 1),
    Sketcher.Constraint("Coincident", 17, 2, 18, 1),
    Sketcher.Constraint("Coincident", 18, 2, 19, 1),
    Sketcher.Constraint("Coincident", 19, 2, 16, 1),
    Sketcher.Constraint("Coincident", 20, 2, 21, 1),
    Sketcher.Constraint("Coincident", 21, 2, 22, 1),
    Sketcher.Constraint("Coincident", 22, 2, 23, 1),
    Sketcher.Constraint("Coincident", 23, 2, 20, 1),
    Sketcher.Constraint("Vertical", 0),
    Sketcher.Constraint("Horizontal", 1),
    Sketcher.Constraint("Vertical", 2),
    Sketcher.Constraint("Horizontal", 3),
    Sketcher.Constraint("Vertical", 4),
    Sketcher.Constraint("Horizontal", 5),
    Sketcher.Constraint("Vertical", 6),
    Sketcher.Constraint("Horizontal", 7),
    Sketcher.Constraint("Vertical", 8),
    Sketcher.Constraint("Horizontal", 9),
    Sketcher.Constraint("Vertical", 10),
    Sketcher.Constraint("Horizontal", 11),
    Sketcher.Constraint("Vertical", 12),
    Sketcher.Constraint("Horizontal", 13),
    Sketcher.Constraint("Vertical", 14),
    Sketcher.Constraint("Horizontal", 15),
    Sketcher.Constraint("Vertical", 16),
    Sketcher.Constraint("Horizontal", 17),
    Sketcher.Constraint("Vertical", 18),
    Sketcher.Constraint("Horizontal", 19),
    Sketcher.Constraint("Vertical", 20),
    Sketcher.Constraint("Horizontal", 21),
    Sketcher.Constraint("Vertical", 22),
    Sketcher.Constraint("Horizontal", 23),
    Sketcher.Constraint("Vertical", 7, 2, 8, 2),
    Sketcher.Constraint("Vertical", 14, 2, 17, 2),
    Sketcher.Constraint("Vertical", 19, 2, 20, 2),
    Sketcher.Constraint("Vertical", 2, 2, 21, 2),
    Sketcher.Constraint("DistanceX", 5, 1, 5, 2, 19.421801),
    Sketcher.Constraint("DistanceX", 21, 1, 21, 2, 21.149419),
    Sketcher.Constraint("DistanceX", -1, 1, 0, 2, 48.207901),
    Sketcher.Constraint("DistanceY", -1, 1, 14, 2, 49.174101),
    Sketcher.Constraint("DistanceY", -1, 1, 16, 2, 43.713701),
    Sketcher.Constraint("DistanceX", 1, 1, 1, 2, 30.712185),
    Sketcher.Constraint("DistanceX", 9, 1, 9, 2, 20.782622),
    Sketcher.Constraint("DistanceX", 13, 1, 13, 2, 20.500354),
    Sketcher.Constraint("DistanceX", 17, 1, 17, 2, 18.507472),
    Sketcher.Constraint("DistanceY", 0, 2, 0, 1, 20.943922),
    Sketcher.Constraint("DistanceY", 4, 2, 4, 1, 1.175824),
    Sketcher.Constraint("DistanceY", 8, 2, 8, 1, 1.282193),
    Sketcher.Constraint("DistanceY", 12, 2, 12, 1, 0.874412),
    Sketcher.Constraint("DistanceY", 16, 2, 16, 1, 1.583604),
    Sketcher.Constraint("DistanceY", 20, 2, 20, 1, 1.323547),
    Sketcher.Constraint("DistanceY", -1, 1, 4, 2, 55.840542),
    Sketcher.Constraint("DistanceY", -1, 1, 20, 2, 39.90192),
    Sketcher.Constraint("DistanceX", 4, 2, 1, 2, 24.785391),
    Sketcher.Constraint("DistanceY", 6, 2, 1, 2, 11.92623),
    Sketcher.Constraint("DistanceY", 8, 2, 7, 2, 4.94625),
])
pad11 = body.newObject("PartDesign::Pad", "Pad010")
pad11.Profile = sketch13
pad11.Length = 5

doc.recompute()
